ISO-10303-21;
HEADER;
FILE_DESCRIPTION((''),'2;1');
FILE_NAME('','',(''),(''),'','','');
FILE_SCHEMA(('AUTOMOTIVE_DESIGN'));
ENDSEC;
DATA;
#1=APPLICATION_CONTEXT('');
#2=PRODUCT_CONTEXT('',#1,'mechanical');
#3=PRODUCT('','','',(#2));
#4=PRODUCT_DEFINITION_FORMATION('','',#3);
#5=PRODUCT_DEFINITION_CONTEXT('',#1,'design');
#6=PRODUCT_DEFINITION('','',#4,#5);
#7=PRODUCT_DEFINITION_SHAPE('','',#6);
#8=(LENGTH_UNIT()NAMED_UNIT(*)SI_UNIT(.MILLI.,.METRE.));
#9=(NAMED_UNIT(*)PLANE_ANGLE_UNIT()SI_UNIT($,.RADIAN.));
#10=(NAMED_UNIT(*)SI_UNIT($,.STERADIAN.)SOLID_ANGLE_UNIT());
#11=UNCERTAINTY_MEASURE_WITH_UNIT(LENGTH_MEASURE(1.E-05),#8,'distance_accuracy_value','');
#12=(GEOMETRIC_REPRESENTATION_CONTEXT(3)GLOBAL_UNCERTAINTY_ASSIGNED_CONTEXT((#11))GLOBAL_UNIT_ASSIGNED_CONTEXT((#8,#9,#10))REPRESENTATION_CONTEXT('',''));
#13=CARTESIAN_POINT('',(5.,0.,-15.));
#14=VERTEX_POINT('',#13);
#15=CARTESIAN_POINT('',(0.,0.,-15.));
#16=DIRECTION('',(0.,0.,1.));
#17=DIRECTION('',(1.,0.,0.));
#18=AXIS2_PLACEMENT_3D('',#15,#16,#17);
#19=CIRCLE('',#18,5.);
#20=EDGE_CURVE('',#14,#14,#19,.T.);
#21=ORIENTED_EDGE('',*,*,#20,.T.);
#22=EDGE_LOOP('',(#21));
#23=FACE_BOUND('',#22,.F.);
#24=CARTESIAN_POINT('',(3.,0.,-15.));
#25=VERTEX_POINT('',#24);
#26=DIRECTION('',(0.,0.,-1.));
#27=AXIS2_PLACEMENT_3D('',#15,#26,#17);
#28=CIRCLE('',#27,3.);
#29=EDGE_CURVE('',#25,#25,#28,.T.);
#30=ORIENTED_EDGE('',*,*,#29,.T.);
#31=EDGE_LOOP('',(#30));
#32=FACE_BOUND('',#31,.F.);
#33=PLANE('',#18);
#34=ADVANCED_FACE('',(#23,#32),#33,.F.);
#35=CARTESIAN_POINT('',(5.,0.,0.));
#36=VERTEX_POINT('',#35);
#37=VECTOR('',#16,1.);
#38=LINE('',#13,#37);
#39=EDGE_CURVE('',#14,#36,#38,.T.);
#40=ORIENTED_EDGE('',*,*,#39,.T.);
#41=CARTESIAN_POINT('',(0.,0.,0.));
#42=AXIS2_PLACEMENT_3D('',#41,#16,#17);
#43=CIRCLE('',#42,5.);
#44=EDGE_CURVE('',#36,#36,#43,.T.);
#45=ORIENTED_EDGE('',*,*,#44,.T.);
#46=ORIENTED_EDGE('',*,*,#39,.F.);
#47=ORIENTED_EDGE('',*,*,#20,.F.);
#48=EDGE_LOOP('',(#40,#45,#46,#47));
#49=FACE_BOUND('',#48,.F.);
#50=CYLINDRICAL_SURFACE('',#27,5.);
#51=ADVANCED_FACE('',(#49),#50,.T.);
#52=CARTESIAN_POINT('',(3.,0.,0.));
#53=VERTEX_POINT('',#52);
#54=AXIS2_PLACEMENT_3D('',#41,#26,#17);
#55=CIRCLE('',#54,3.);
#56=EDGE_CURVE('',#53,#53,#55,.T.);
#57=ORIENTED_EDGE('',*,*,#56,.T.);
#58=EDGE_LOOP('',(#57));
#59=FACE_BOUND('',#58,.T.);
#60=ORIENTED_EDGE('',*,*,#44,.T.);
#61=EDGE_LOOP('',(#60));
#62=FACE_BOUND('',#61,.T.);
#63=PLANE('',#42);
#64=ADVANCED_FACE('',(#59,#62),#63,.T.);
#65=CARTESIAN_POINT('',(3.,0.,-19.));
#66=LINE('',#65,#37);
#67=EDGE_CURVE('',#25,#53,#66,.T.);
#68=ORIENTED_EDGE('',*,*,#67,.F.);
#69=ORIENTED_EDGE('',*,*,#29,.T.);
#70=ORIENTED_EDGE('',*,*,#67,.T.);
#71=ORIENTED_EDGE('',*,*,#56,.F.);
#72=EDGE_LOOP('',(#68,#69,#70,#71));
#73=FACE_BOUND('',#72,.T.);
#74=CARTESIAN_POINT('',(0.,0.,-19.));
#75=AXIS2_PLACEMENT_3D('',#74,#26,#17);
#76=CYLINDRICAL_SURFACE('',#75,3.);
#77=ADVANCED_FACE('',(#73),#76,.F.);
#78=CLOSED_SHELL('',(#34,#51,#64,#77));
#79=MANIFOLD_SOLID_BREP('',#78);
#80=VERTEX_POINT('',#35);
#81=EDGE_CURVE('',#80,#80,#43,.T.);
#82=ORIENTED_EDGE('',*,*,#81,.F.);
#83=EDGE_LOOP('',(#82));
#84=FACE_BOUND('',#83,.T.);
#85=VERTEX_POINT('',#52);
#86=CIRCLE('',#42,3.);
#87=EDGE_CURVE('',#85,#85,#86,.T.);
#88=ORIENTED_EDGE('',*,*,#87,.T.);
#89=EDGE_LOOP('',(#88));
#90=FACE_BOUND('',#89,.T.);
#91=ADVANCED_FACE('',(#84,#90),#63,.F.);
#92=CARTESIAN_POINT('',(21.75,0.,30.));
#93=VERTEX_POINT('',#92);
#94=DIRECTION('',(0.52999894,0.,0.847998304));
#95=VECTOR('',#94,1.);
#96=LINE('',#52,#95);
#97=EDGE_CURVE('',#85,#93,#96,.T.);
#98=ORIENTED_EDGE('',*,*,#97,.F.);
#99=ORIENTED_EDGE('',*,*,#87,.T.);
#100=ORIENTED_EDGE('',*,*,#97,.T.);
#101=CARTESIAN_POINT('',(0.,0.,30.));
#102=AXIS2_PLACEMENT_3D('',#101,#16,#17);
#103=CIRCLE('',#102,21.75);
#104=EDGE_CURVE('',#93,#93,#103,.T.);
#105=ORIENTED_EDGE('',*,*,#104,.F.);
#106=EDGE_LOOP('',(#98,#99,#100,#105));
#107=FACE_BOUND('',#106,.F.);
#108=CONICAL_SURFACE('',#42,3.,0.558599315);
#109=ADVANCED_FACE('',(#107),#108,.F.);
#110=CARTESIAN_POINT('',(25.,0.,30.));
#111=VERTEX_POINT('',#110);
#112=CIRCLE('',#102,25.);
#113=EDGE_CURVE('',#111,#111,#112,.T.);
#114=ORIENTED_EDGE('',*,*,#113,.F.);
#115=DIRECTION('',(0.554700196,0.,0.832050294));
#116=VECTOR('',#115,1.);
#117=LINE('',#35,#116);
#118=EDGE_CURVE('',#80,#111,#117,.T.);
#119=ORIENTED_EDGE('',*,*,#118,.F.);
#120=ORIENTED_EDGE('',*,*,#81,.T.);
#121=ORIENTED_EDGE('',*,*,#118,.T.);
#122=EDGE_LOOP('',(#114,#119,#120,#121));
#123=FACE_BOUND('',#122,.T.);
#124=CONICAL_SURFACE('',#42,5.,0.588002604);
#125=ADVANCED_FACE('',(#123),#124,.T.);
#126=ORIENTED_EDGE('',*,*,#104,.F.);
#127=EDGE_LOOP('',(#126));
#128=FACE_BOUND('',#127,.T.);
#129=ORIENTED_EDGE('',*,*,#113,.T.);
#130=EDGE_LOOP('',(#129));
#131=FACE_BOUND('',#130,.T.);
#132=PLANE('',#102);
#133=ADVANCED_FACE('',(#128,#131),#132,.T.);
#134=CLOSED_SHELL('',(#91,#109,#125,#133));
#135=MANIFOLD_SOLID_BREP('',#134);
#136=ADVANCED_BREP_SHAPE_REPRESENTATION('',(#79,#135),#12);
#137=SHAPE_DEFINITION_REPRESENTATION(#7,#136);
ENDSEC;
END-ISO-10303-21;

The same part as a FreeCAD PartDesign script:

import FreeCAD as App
import Part
import Sketcher

V = App.Vector
Q = App.Units.Quantity

doc = App.newDocument("Part")
params = doc.addObject("Spreadsheet::Sheet", "Params")
for row, (alias, value) in enumerate([
    ("sketch1_width", "3 mm"),
    ("sketch1_width2", "23 mm"),
    ("sketch1_height", "32 mm"),
    ("revolution_angle", "360 deg"),
    ("sketch2_width", "5 mm"),
    ("sketch2_width2", "25 mm"),
    ("sketch2_height", "30 mm"),
    ("revolution2_angle", "360 deg"),
    ("sketch3_diameter", "6 mm"),
    ("pad1_length", "23 mm"),
    ("sketch4_diameter", "10 mm"),
    ("pad2_length", "15 mm"),
], start=1):
    params.set(f"A{row}", alias)
    params.set(f"B{row}", "=" + value)
    params.setAlias(f"B{row}", alias)

body = doc.addObject("PartDesign::Body", "Body")

# Sketch on XZ plane
sketch1 = doc.addObject("Sketcher::SketchObject", "Sketch")
body.addObject(sketch1)
sketch1.AttachmentSupport = (doc.XZ_Plane, [""])
sketch1.MapMode = "FlatFace"
sketch1.addGeometry(Part.LineSegment(V(0, 0, 0), V(3, 0, 0)), False)
sketch1.addGeometry(Part.LineSegment(V(3, 0, 0), V(23, 32, 0)), False)
sketch1.addGeometry(Part.LineSegment(V(23, 32, 0), V(0, 32, 0)), False)
sketch1.addGeometry(Part.LineSegment(V(0, 32, 0), V(0, 0, 0)), False)
sketch1.addConstraint(Sketcher.Constraint("Coincident", 0, 2, 1, 1))
sketch1.addConstraint(Sketcher.Constraint("Coincident", 1, 2, 2, 1))
sketch1.addConstraint(Sketcher.Constraint("Coincident", 2, 2, 3, 1))
sketch1.addConstraint(Sketcher.Constraint("Coincident", 3, 2, 0, 1))
sketch1.addConstraint(Sketcher.Constraint("Horizontal", 0))
sketch1.addConstraint(Sketcher.Constraint("Horizontal", 2))
sketch1.addConstraint(Sketcher.Constraint("Vertical", 3))
sketch1.addConstraint(Sketcher.Constraint("Coincident", 3, 2, -1, 1))
sketch1.addConstraint(Sketcher.Constraint("DistanceX", 0, 1, 0, 2, Q("3 mm")))
sketch1.addConstraint(Sketcher.Constraint("DistanceX", 2, 2, 2, 1, Q("23 mm")))
sketch1.addConstraint(Sketcher.Constraint("DistanceY", 3, 2, 3, 1, Q("32 mm")))
sketch1.setExpression("Constraints[8]", "Params.sketch1_width")
sketch1.setExpression("Constraints[9]", "Params.sketch1_width2")
sketch1.setExpression("Constraints[10]", "Params.sketch1_height")
revolution = doc.addObject("PartDesign::Revolution", "Revolution")
body.addObject(revolution)
revolution.Profile = sketch1
revolution.ReferenceAxis = (sketch1, ["V_Axis"])
revolution.setExpression("Angle", "Params.revolution_angle")
body2 = doc.addObject("PartDesign::Body", "Body001")

# Sketch on XZ plane
sketch2 = doc.addObject("Sketcher::SketchObject", "Sketch001")
body2.addObject(sketch2)
sketch2.AttachmentSupport = (doc.getObject("XZ_Plane001"), [""])
sketch2.MapMode = "FlatFace"
sketch2.addGeometry(Part.LineSegment(V(0, 0, 0), V(5, 0, 0)), False)
sketch2.addGeometry(Part.LineSegment(V(5, 0, 0), V(25, 30, 0)), False)
sketch2.addGeometry(Part.LineSegment(V(25, 30, 0), V(0, 30, 0)), False)
sketch2.addGeometry(Part.LineSegment(V(0, 30, 0), V(0, 0, 0)), False)
sketch2.addConstraint(Sketcher.Constraint("Coincident", 0, 2, 1, 1))
sketch2.addConstraint(Sketcher.Constraint("Coincident", 1, 2, 2, 1))
sketch2.addConstraint(Sketcher.Constraint("Coincident", 2, 2, 3, 1))
sketch2.addConstraint(Sketcher.Constraint("Coincident", 3, 2, 0, 1))
sketch2.addConstraint(Sketcher.Constraint("Horizontal", 0))
sketch2.addConstraint(Sketcher.Constraint("Horizontal", 2))
sketch2.addConstraint(Sketcher.Constraint("Vertical", 3))
sketch2.addConstraint(Sketcher.Constraint("Coincident", 3, 2, -1, 1))
sketch2.addConstraint(Sketcher.Constraint("DistanceX", 0, 1, 0, 2, Q("5 mm")))
sketch2.addConstraint(Sketcher.Constraint("DistanceX", 2, 2, 2, 1, Q("25 mm")))
sketch2.addConstraint(Sketcher.Constraint("DistanceY", 3, 2, 3, 1, Q("30 mm")))
sketch2.setExpression("Constraints[8]", "Params.sketch2_width")
sketch2.setExpression("Constraints[9]", "Params.sketch2_width2")
sketch2.setExpression("Constraints[10]", "Params.sketch2_height")
revolution2 = doc.addObject("PartDesign::Revolution", "Revolution001")
body2.addObject(revolution2)
revolution2.Profile = sketch2
revolution2.ReferenceAxis = (sketch2, ["V_Axis"])
revolution2.setExpression("Angle", "Params.revolution2_angle")
doc.recompute()

boolean = doc.addObject("PartDesign::Boolean", "Boolean")
body2.addObject(boolean)
boolean.Type = "Cut"
boolean.addObjects([body])
body3 = doc.addObject("PartDesign::Body", "Body002")

# Sketch on XY plane
sketch3 = doc.addObject("Sketcher::SketchObject", "Sketch002")
body3.addObject(sketch3)
sketch3.AttachmentSupport = (doc.getObject("XY_Plane002"), [""])
sketch3.MapMode = "FlatFace"
sketch3.AttachmentOffset = App.Placement(V(0, 0, -19), App.Rotation())
sketch3.addGeometry(Part.Circle(V(0, 0, 0), V(0, 0, 1), 3), False)
sketch3.addConstraint(Sketcher.Constraint("Coincident", 0, 3, -1, 1))
sketch3.addConstraint(Sketcher.Constraint("Diameter", 0, Q("6 mm")))
sketch3.setExpression("Constraints[1]", "Params.sketch3_diameter")
pad1 = doc.addObject("PartDesign::Pad", "Pad")
body3.addObject(pad1)
pad1.Profile = sketch3
pad1.setExpression("Length", "Params.pad1_length")
body4 = doc.addObject("PartDesign::Body", "Body003")

# Sketch on XY plane
sketch4 = doc.addObject("Sketcher::SketchObject", "Sketch003")
body4.addObject(sketch4)
sketch4.AttachmentSupport = (doc.getObject("XY_Plane003"), [""])
sketch4.MapMode = "FlatFace"
sketch4.AttachmentOffset = App.Placement(V(0, 0, -15), App.Rotation())
sketch4.addGeometry(Part.Circle(V(0, 0, 0), V(0, 0, 1), 5), False)
sketch4.addConstraint(Sketcher.Constraint("Coincident", 0, 3, -1, 1))
sketch4.addConstraint(Sketcher.Constraint("Diameter", 0, Q("10 mm")))
sketch4.setExpression("Constraints[1]", "Params.sketch4_diameter")
pad2 = doc.addObject("PartDesign::Pad", "Pad001")
body4.addObject(pad2)
pad2.Profile = sketch4
pad2.setExpression("Length", "Params.pad2_length")
doc.recompute()

boolean2 = doc.addObject("PartDesign::Boolean", "Boolean001")
body4.addObject(boolean2)
boolean2.Type = "Cut"
boolean2.addObjects([body3])

doc.recompute()
